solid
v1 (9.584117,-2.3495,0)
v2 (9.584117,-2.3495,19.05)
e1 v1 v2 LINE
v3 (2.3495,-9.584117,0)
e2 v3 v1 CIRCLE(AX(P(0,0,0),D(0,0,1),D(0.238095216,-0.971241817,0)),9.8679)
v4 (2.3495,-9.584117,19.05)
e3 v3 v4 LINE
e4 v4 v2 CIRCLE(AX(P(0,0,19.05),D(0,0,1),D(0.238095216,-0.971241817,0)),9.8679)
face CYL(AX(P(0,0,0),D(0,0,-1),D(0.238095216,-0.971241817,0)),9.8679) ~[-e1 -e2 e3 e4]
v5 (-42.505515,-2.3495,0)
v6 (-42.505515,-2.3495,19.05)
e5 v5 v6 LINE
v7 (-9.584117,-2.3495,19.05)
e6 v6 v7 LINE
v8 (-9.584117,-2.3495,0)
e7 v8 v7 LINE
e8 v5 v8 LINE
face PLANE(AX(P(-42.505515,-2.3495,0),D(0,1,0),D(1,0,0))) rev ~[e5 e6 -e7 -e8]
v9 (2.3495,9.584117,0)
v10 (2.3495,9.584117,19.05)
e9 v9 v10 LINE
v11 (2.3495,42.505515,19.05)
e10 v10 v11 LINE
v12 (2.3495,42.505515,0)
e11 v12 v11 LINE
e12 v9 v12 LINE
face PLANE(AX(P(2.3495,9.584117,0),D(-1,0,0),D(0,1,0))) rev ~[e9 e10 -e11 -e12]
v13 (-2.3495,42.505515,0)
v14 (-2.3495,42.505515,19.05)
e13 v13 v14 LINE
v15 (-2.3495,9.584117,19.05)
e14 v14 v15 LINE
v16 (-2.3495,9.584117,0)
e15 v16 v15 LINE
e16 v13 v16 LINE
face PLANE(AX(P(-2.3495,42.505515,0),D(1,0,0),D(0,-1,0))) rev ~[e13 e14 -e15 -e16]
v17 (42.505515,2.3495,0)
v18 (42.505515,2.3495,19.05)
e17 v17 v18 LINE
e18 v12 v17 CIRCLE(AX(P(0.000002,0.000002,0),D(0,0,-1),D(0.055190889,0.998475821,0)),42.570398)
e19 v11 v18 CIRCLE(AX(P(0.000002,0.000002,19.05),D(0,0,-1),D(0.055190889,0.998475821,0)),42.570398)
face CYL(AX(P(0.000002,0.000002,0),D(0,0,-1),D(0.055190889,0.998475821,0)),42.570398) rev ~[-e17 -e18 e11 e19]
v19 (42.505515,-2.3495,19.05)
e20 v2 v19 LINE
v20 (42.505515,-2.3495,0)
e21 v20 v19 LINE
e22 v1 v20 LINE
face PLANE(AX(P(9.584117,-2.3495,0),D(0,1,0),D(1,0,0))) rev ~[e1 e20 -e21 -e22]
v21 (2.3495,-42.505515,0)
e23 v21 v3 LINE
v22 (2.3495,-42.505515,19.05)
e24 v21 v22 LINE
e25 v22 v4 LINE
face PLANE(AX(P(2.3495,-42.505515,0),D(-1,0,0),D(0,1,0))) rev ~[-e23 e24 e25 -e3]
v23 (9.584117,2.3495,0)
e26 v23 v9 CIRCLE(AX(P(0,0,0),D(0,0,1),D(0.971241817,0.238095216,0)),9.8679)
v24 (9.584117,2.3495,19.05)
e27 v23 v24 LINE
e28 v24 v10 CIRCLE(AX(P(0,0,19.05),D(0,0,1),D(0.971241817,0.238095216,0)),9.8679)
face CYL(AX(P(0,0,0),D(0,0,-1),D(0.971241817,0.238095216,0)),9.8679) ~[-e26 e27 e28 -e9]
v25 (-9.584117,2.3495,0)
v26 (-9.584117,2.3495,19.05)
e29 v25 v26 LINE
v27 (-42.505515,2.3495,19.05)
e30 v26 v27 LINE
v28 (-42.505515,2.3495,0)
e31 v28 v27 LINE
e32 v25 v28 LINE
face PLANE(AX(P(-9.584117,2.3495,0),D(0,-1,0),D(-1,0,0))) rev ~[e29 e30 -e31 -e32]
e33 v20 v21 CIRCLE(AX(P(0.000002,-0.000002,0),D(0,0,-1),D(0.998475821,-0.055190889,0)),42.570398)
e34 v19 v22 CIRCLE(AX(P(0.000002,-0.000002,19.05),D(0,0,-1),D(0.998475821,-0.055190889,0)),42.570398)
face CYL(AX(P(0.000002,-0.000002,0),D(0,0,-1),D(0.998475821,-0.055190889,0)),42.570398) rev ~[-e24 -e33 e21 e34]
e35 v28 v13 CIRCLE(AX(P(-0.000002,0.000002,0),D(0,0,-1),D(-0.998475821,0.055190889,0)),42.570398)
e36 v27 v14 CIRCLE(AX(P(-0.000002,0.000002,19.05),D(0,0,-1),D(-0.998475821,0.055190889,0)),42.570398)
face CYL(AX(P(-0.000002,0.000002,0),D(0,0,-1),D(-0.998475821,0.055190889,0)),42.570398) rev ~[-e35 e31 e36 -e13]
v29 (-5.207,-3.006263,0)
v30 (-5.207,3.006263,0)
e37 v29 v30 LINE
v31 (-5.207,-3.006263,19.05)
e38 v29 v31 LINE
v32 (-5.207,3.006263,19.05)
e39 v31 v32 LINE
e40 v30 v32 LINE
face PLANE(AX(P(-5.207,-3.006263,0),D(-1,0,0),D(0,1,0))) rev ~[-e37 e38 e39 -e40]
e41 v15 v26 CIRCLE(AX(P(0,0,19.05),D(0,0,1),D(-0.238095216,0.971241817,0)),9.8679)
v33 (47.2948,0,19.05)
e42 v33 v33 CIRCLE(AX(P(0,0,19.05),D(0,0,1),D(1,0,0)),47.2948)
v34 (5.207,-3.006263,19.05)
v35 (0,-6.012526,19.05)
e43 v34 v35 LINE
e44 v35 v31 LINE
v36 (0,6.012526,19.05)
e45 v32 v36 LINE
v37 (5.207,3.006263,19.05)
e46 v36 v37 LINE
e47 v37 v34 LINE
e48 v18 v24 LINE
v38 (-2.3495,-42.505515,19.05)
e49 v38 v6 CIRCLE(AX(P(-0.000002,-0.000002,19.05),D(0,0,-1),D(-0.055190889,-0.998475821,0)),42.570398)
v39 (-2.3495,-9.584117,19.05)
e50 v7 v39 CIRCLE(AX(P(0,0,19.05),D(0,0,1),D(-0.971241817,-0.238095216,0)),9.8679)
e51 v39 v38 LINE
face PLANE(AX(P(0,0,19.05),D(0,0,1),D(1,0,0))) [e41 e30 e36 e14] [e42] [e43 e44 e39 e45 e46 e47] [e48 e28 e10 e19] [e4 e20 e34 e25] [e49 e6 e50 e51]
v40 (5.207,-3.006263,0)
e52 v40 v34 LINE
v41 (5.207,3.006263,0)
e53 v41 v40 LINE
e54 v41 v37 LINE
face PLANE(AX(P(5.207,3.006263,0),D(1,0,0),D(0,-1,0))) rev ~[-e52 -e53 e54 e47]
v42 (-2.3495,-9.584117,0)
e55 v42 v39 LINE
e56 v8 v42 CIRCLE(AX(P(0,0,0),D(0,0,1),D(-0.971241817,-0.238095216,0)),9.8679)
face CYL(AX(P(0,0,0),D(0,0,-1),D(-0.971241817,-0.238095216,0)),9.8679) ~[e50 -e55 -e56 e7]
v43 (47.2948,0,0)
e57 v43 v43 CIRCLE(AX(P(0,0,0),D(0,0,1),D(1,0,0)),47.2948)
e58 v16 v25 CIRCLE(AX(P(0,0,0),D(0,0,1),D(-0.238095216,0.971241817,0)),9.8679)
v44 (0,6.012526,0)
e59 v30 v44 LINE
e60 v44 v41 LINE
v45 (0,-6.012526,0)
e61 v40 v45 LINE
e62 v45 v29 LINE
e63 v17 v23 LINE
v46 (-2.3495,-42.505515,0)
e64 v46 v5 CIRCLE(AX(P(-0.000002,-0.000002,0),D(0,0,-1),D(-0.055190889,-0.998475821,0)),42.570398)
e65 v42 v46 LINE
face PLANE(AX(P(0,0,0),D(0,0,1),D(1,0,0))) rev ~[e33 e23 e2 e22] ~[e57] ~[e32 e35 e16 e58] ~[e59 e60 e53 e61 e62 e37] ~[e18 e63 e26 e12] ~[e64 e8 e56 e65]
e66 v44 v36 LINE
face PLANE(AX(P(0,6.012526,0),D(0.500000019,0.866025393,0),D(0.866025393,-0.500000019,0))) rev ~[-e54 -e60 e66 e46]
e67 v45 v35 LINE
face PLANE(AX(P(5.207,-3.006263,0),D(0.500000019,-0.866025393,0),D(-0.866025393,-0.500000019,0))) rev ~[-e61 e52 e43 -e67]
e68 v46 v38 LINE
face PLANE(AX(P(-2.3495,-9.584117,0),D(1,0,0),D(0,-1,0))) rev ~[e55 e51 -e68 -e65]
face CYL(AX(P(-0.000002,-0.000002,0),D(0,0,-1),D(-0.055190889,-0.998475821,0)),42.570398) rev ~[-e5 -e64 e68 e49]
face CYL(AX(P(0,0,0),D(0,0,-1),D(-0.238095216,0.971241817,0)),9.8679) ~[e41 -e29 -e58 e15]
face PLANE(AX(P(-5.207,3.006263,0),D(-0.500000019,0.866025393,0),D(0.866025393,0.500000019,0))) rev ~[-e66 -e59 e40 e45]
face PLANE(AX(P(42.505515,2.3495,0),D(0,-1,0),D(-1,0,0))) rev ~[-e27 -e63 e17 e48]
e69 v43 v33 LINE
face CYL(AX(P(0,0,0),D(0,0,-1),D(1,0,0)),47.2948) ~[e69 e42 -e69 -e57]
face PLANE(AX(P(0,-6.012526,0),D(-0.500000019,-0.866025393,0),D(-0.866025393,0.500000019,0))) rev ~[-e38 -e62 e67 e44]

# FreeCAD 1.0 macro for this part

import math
import FreeCAD as App
import Part
import Sketcher

V = App.Vector
Q = App.Units.Quantity


def add_polygon(sketch, points):
    """Adds a closed chain of lines whose ends are joined by coincident constraints."""
    first, n = sketch.GeometryCount, len(points)
    for a, b in zip(points, points[1:] + points[:1]):
        sketch.addGeometry(Part.LineSegment(App.Vector(*a, 0), App.Vector(*b, 0)), False)
    for i in range(n):
        sketch.addConstraint(Sketcher.Constraint("Coincident", first + i, 2, first + (i + 1) % n, 1))

doc = App.newDocument("Part")
params = doc.addObject("Spreadsheet::Sheet", "Params")
for row, (alias, value) in enumerate([
    ("sketch1_diameter", "3.724 in"),
    ("sketch1_radius", "1.6759999 in"),
    ("pad1_length", "0.75 in"),
], start=1):
    params.set(f"A{row}", alias)
    params.set(f"B{row}", "=" + value)
    params.setAlias(f"B{row}", alias)

body = doc.addObject("PartDesign::Body", "Body")

# Sketch on XY plane
sketch1 = body.newObject("Sketcher::SketchObject", "Sketch")
sketch1.AttachmentSupport = (doc.getObject("XY_Plane"), [""])
sketch1.MapMode = "FlatFace"
sketch1.addGeometry(Part.Circle(V(0, 0, 0), V(0, 0, 1), 47), False)  # 0
sketch1.addGeometry(Part.ArcOfCircle(Part.Circle(V(0, 0, 0), V(0, 0, 1), 43), math.radians(3), math.radians(87)), False)  # 1
sketch1.addGeometry(Part.LineSegment(V(43, 2, 0), V(10, 2, 0)), False)  # 2
sketch1.addGeometry(Part.ArcOfCircle(Part.Circle(V(0, 0, 0), V(0, 0, 1), 10), math.radians(14), math.radians(76)), False)  # 3
sketch1.addGeometry(Part.LineSegment(V(2, 10, 0), V(2, 43, 0)), False)  # 4
sketch1.addGeometry(Part.ArcOfCircle(Part.Circle(V(0, 0, 0), V(0, 0, 1), 43), math.radians(-87), math.radians(-3)), False)  # 5
sketch1.addGeometry(Part.LineSegment(V(2, -43, 0), V(2, -10, 0)), False)  # 6
sketch1.addGeometry(Part.ArcOfCircle(Part.Circle(V(0, 0, 0), V(0, 0, 1), 10), math.radians(-76), math.radians(-14)), False)  # 7
sketch1.addGeometry(Part.LineSegment(V(10, -2, 0), V(43, -2, 0)), False)  # 8
sketch1.addGeometry(Part.ArcOfCircle(Part.Circle(V(0, 0, 0), V(0, 0, 1), 43), math.radians(-177), math.radians(-93)), False)  # 9
sketch1.addGeometry(Part.LineSegment(V(-43, -2, 0), V(-10, -2, 0)), False)  # 10
sketch1.addGeometry(Part.ArcOfCircle(Part.Circle(V(0, 0, 0), V(0, 0, 1), 10), math.radians(-166), math.radians(-104)), False)  # 11
sketch1.addGeometry(Part.LineSegment(V(-2, -10, 0), V(-2, -43, 0)), False)  # 12
sketch1.addGeometry(Part.ArcOfCircle(Part.Circle(V(0, 0, 0), V(0, 0, 1), 43), math.radians(93), math.radians(177)), False)  # 13
sketch1.addGeometry(Part.LineSegment(V(-2, 43, 0), V(-2, 10, 0)), False)  # 14
sketch1.addGeometry(Part.ArcOfCircle(Part.Circle(V(0, 0, 0), V(0, 0, 1), 10), math.radians(104), math.radians(166)), False)  # 15
sketch1.addGeometry(Part.LineSegment(V(-10, 2, 0), V(-43, 2, 0)), False)  # 16
add_polygon(sketch1, [(-5, -3), (-5, 3), (0, 6), (5, 3), (5, -3), (0, -6)])  # lines 17-22
sketch1.addConstraint([
    Sketcher.Constraint("Coincident", 1, 1, 2, 1),
    Sketcher.Constraint("Coincident", 2, 2, 3, 1),
    Sketcher.Constraint("Coincident", 3, 2, 4, 1),
    Sketcher.Constraint("Coincident", 4, 2, 1, 2),
    Sketcher.Constraint("Coincident", 5, 1, 6, 1),
    Sketcher.Constraint("Coincident", 6, 2, 7, 1),
    Sketcher.Constraint("Coincident", 7, 2, 8, 1),
    Sketcher.Constraint("Coincident", 8, 2, 5, 2),
    Sketcher.Constraint("Coincident", 9, 1, 10, 1),
    Sketcher.Constraint("Coincident", 10, 2, 11, 1),
    Sketcher.Constraint("Coincident", 11, 2, 12, 1),
    Sketcher.Constraint("Coincident", 12, 2, 9, 2),
    Sketcher.Constraint("Coincident", 13, 1, 14, 1),
    Sketcher.Constraint("Coincident", 14, 2, 15, 1),
    Sketcher.Constraint("Coincident", 15, 2, 16, 1),
    Sketcher.Constraint("Coincident", 16, 2, 13, 2),
    Sketcher.Constraint("Horizontal", 2),
    Sketcher.Constraint("Vertical", 4),
    Sketcher.Constraint("Vertical", 6),
    Sketcher.Constraint("Horizontal", 8),
    Sketcher.Constraint("Horizontal", 10),
    Sketcher.Constraint("Vertical", 12),
    Sketcher.Constraint("Vertical", 14),
    Sketcher.Constraint("Horizontal", 16),
    Sketcher.Constraint("Vertical", 17),
    Sketcher.Constraint("Vertical", 20),
    Sketcher.Constraint("Coincident", 0, 3, -1, 1),
    Sketcher.Constraint("Coincident", 1, 3, -1, 1),
    Sketcher.Constraint("Coincident", 3, 3, -1, 1),
    Sketcher.Constraint("Coincident", 5, 3, -1, 1),
    Sketcher.Constraint("Coincident", 7, 3, -1, 1),
    Sketcher.Constraint("Coincident", 9, 3, -1, 1),
    Sketcher.Constraint("Coincident", 11, 3, -1, 1),
    Sketcher.Constraint("Coincident", 13, 3, -1, 1),
    Sketcher.Constraint("Coincident", 15, 3, -1, 1),
    Sketcher.Constraint("Equal", 1, 5),
    Sketcher.Constraint("Equal", 3, 7),
    Sketcher.Constraint("Equal", 5, 9),
    Sketcher.Constraint("Equal", 7, 11),
    Sketcher.Constraint("Equal", 9, 13),
    Sketcher.Constraint("Equal", 11, 15),
    Sketcher.Constraint("Symmetric", 17, 2, 20, 2, -1, 1),
    Sketcher.Constraint("Symmetric", 18, 2, 21, 2, -1, 1),
    Sketcher.Constraint("PointOnObject", 18, 2, -2),
    Sketcher.Constraint("Parallel", 19, 22),
    Sketcher.Constraint("Horizontal", 8, 2, 9, 1),
    Sketcher.Constraint("Horizontal", 6, 2, 11, 2),
    Sketcher.Constraint("Horizontal", 4, 2, 13, 1),
    Sketcher.Constraint("Horizontal", 2, 2, 15, 2),
    Sketcher.Constraint("Horizontal", 17, 2, 19, 2),
    Sketcher.Constraint("Vertical", 4, 2, 5, 1),
    Sketcher.Constraint("Vertical", 2, 2, 7, 2),
    Sketcher.Constraint("Equal", 16, 4),
    Sketcher.Constraint("Diameter", 0, Q("3.724 in")),
    Sketcher.Constraint("Angle", 18, Q("30.000001 deg")),
    Sketcher.Constraint("Radius", 1, Q("1.6759999 in")),
    Sketcher.Constraint("Radius", 3, Q("0.3885 in")),
    Sketcher.Constraint("DistanceX", 17, 2, -1, 1, Q("0.205 in")),
    Sketcher.Constraint("DistanceY", 7, 2, 2, 2, Q("0.185 in")),
    Sketcher.Constraint("DistanceY", 17, 1, 17, 2, 6.012526),
])
sketch1.setExpression("Constraints[59]", "Params.sketch1_diameter")
sketch1.setExpression("Constraints[61]", "Params.sketch1_radius")
pad1 = body.newObject("PartDesign::Pad", "Pad")
pad1.Profile = sketch1
pad1.setExpression("Length", "Params.pad1_length")

doc.recompute()
